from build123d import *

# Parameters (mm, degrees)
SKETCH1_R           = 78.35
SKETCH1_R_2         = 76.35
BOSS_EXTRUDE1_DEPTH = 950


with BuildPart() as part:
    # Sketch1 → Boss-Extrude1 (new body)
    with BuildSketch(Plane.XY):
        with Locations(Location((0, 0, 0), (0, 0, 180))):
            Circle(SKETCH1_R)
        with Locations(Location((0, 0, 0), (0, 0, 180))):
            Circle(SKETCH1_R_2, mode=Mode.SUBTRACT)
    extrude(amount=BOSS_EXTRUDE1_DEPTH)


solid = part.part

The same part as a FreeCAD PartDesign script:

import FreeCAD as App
import Part
import Sketcher

doc = App.newDocument("Part")
body = doc.addObject("PartDesign::Body", "Body")

# Sketch on XY plane
sketch1 = body.newObject("Sketcher::SketchObject", "Sketch")
sketch1.AttachmentSupport = (doc.getObject("XY_Plane"), [""])
sketch1.MapMode = "FlatFace"
sketch1.addGeometry([
    Part.Circle(App.Vector(0, 0, 0), App.Vector(0, 0, 1), 78),
    Part.Circle(App.Vector(0, 0, 0), App.Vector(0, 0, 1), 76),
], False)
sketch1.addConstraint([
    Sketcher.Constraint("Coincident", 0, 3, -1, 1),
    Sketcher.Constraint("Coincident", 1, 3, -1, 1),
    Sketcher.Constraint("Diameter", 0, 156.7),
    Sketcher.Constraint("Diameter", 1, 152.7),
])
pad1 = body.newObject("PartDesign::Pad", "Pad")
pad1.Profile = sketch1
pad1.Length = 950

doc.recompute()
